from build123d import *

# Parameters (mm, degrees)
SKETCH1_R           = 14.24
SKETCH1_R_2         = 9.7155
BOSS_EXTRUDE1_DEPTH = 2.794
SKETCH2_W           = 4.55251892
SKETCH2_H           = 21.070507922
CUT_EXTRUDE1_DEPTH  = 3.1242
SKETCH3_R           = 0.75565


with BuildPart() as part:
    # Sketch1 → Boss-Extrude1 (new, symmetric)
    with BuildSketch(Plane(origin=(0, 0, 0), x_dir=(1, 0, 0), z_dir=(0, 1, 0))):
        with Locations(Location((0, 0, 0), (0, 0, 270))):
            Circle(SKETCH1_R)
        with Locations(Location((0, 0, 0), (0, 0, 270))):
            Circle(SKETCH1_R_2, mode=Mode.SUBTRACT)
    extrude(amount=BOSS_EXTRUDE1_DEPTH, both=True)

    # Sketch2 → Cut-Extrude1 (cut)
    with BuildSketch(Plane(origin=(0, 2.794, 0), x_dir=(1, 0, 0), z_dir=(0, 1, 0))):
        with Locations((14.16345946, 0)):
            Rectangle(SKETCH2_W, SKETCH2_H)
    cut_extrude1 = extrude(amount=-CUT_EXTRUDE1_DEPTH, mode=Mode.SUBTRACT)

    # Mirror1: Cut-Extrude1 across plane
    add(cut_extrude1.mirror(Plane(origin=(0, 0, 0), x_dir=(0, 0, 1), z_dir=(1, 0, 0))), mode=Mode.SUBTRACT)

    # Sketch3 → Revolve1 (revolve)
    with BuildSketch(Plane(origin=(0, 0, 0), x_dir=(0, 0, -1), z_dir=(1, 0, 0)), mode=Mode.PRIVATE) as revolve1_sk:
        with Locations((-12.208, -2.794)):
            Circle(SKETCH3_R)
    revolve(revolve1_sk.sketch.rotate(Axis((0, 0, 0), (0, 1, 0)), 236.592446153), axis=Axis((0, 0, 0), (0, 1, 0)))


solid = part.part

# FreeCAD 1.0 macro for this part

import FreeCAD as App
import Part
import Sketcher
Q = App.Units.Quantity


def add_polygon(sketch, points):
    """Adds a closed chain of lines whose ends are joined by coincident constraints."""
    first, n = sketch.GeometryCount, len(points)
    for a, b in zip(points, points[1:] + points[:1]):
        sketch.addGeometry(Part.LineSegment(App.Vector(*a, 0), App.Vector(*b, 0)), False)
    for i in range(n):
        sketch.addConstraint(Sketcher.Constraint("Coincident", first + i, 2, first + (i + 1) % n, 1))

doc = App.newDocument("Part")
body = doc.addObject("PartDesign::Body", "Body")

# Sketch on XZ plane
sketch1 = body.newObject("Sketcher::SketchObject", "Sketch")
sketch1.AttachmentSupport = (doc.getObject("XZ_Plane"), [""])
sketch1.MapMode = "FlatFace"
sketch1.addGeometry([
    Part.Circle(App.Vector(0, 0, 0), App.Vector(0, 0, 1), 14.24),
    Part.Circle(App.Vector(0, 0, 0), App.Vector(0, 0, 1), 9.7155),
], False)
sketch1.addConstraint([
    Sketcher.Constraint("Coincident", 0, 3, -1, 1),
    Sketcher.Constraint("Coincident", 1, 3, -1, 1),
    Sketcher.Constraint("Diameter", 1, Q("0.765 in")),
    Sketcher.Constraint("Diameter", 0, 28.48),
])
pad1 = body.newObject("PartDesign::Pad", "Pad")
pad1.Profile = sketch1
pad1.Length = Q("0.22 in")
pad1.Midplane = True

# Sketch on XZ plane
sketch2 = body.newObject("Sketcher::SketchObject", "Sketch001")
sketch2.AttachmentSupport = (doc.getObject("XZ_Plane"), [""])
sketch2.MapMode = "FlatFace"
sketch2.AttachmentOffset = App.Placement(App.Vector(0, 0, -0.11 * 25.4), App.Rotation())
add_polygon(sketch2, [(11.8872, -10.535254), (11.8872, 10.535254), (16.439719, 10.535254), (16.439719, -10.535254)])  # lines 0-3
sketch2.addConstraint([
    Sketcher.Constraint("Vertical", 0),
    Sketcher.Constraint("Horizontal", 1),
    Sketcher.Constraint("Vertical", 2),
    Sketcher.Constraint("Horizontal", 3),
    Sketcher.Constraint("DistanceX", -1, 1, 0, 2, Q("0.468 in")),
    Sketcher.Constraint("DistanceX", 1, 1, 1, 2, 4.552519),
    Sketcher.Constraint("DistanceY", 0, 1, 0, 2, 21.070508),
    Sketcher.Constraint("DistanceY", -1, 1, 0, 2, 10.535254),
])
pocket1 = body.newObject("PartDesign::Pocket", "Pocket")
pocket1.Profile = sketch2
pocket1.Length = Q("0.123 in")
pocket1.Reversed = True
doc.recompute()

mirrored = body.newObject("PartDesign::Mirrored", "Mirrored")
mirrored.Originals = [pocket1]
mirrored.MirrorPlane = (doc.getObject("YZ_Plane"), [""])
body.Tip = mirrored

# Sketch on YZ plane
sketch3 = body.newObject("Sketcher::SketchObject", "Sketch002")
sketch3.AttachmentSupport = (doc.getObject("YZ_Plane"), [""])
sketch3.MapMode = "FlatFace"
sketch3.addGeometry(Part.Circle(App.Vector(-2.794, 12.208, 0), App.Vector(0, 0, 1), 0.75565), False)
sketch3.addConstraint([
    Sketcher.Constraint("Diameter", 0, Q("0.0595 in")),
    Sketcher.Constraint("DistanceX", 0, 3, -1, 1, Q("0.11 in")),
    Sketcher.Constraint("DistanceY", -1, 1, 0, 3, 12.208),
])
revolution = body.newObject("PartDesign::Revolution", "Revolution")
revolution.Profile = sketch3
revolution.ReferenceAxis = (sketch3, ["H_Axis"])
revolution.Angle = 360

doc.recompute()
